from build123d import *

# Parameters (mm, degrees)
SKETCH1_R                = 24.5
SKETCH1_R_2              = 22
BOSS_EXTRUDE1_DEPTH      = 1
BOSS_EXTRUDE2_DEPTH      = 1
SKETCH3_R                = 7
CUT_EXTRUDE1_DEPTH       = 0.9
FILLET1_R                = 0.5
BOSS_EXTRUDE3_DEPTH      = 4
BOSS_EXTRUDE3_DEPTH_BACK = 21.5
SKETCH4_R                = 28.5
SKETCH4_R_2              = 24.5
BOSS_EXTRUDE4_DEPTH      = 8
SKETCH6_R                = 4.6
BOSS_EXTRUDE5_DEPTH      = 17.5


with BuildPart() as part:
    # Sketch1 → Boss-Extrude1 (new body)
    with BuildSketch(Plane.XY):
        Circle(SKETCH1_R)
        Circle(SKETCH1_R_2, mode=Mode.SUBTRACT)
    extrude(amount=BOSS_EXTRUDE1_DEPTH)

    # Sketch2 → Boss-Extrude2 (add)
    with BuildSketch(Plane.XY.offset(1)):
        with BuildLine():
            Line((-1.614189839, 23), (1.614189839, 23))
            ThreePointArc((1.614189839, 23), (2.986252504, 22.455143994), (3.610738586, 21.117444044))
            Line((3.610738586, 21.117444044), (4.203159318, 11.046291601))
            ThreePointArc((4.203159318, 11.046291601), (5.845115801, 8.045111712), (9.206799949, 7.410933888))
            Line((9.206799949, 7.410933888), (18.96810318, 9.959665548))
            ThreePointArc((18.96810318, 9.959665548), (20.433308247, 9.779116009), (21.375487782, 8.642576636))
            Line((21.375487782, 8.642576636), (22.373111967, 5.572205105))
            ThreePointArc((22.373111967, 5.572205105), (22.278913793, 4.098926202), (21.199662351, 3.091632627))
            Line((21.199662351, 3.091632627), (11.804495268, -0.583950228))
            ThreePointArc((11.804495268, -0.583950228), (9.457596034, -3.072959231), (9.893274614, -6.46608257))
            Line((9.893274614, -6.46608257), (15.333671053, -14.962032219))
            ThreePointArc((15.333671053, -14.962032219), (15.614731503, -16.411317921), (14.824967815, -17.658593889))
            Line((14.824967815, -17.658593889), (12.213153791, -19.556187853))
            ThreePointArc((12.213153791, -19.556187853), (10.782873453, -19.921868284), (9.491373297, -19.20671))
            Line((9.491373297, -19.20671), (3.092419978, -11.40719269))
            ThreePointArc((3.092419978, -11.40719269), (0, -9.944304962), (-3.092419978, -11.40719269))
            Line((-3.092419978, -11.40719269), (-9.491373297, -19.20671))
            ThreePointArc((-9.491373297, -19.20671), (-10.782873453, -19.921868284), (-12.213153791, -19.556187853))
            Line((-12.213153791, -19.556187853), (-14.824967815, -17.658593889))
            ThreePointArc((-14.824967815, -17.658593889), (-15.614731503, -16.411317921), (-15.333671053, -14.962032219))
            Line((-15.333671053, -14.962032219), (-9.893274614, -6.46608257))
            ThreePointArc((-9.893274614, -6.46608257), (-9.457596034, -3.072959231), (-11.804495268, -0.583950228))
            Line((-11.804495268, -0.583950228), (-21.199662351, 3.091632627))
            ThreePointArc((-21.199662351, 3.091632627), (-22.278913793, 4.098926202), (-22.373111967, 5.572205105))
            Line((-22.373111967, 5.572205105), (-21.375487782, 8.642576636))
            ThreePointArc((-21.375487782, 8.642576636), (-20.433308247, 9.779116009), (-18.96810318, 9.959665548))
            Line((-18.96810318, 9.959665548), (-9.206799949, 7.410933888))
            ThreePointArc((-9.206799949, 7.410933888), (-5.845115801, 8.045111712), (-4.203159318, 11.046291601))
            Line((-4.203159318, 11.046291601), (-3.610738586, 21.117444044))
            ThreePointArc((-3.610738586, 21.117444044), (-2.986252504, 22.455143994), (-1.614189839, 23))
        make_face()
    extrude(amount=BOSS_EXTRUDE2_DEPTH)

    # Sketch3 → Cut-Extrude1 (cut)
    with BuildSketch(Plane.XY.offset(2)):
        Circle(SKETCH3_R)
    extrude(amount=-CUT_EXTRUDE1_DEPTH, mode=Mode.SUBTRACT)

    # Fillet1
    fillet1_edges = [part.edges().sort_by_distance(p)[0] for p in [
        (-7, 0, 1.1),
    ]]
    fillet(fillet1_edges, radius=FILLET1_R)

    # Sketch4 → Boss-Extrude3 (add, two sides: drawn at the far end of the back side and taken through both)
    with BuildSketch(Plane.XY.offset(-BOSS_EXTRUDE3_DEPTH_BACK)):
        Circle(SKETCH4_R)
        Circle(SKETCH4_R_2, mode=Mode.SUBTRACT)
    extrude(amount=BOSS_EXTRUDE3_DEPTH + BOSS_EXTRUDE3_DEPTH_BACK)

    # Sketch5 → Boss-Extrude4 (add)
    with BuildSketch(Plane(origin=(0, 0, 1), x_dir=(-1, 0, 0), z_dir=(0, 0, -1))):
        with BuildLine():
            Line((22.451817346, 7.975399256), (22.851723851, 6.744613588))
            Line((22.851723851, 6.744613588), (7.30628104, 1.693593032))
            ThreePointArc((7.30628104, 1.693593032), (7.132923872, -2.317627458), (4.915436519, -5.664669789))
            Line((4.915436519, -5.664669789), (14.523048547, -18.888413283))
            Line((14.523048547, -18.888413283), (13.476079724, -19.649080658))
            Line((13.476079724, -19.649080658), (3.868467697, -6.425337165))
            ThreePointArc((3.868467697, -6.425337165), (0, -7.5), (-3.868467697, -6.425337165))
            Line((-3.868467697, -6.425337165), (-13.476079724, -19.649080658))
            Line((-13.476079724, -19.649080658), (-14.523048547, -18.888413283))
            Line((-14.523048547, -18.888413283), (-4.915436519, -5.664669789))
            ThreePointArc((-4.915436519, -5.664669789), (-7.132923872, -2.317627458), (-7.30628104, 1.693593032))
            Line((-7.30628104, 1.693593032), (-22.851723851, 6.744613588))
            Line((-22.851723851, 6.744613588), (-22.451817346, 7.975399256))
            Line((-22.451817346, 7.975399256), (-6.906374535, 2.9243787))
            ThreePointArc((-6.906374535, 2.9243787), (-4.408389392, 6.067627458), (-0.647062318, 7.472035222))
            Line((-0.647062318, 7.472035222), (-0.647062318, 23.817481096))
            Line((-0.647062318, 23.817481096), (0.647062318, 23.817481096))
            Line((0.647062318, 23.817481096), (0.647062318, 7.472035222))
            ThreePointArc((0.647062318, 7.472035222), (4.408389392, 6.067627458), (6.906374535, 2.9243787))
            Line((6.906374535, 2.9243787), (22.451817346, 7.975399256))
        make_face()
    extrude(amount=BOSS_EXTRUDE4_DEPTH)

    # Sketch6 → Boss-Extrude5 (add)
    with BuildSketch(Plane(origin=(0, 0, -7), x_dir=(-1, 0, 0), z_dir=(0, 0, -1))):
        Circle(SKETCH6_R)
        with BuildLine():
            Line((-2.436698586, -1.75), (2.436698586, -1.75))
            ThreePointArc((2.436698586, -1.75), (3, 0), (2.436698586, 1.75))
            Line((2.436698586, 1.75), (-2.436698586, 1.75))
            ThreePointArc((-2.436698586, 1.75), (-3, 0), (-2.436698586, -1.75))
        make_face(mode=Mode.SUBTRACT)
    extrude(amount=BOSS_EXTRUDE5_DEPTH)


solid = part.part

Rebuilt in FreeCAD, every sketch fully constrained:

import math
import FreeCAD as App
import Part
import Sketcher

V = App.Vector
Q = App.Units.Quantity


def edges_at(feature, points):
    """Names of the edges that pass closest to the given points."""
    edges = feature.Shape.Edges
    near = lambda p: min(range(len(edges)), key=lambda i: edges[i].distToShape(Part.Vertex(*p))[0])
    return sorted({f"Edge{near(p) + 1}" for p in points})

doc = App.newDocument("Part")
body = doc.addObject("PartDesign::Body", "Body")

# Sketch on XY plane
sketch1 = body.newObject("Sketcher::SketchObject", "Sketch")
sketch1.AttachmentSupport = (doc.getObject("XY_Plane"), [""])
sketch1.MapMode = "FlatFace"
sketch1.addGeometry(Part.Circle(V(0, 0, 0), V(0, 0, 1), 24.5), False)
sketch1.addGeometry(Part.Circle(V(0, 0, 0), V(0, 0, 1), 22), False)
sketch1.addConstraint(Sketcher.Constraint("Coincident", 0, 3, -1, 1))
sketch1.addConstraint(Sketcher.Constraint("Coincident", 1, 3, -1, 1))
sketch1.addConstraint(Sketcher.Constraint("Diameter", 0, Q("49 mm")))
sketch1.addConstraint(Sketcher.Constraint("Diameter", 1, Q("44 mm")))
pad1 = body.newObject("PartDesign::Pad", "Pad")
pad1.Profile = sketch1
pad1.Length = 1

# Sketch on XY plane
sketch2 = body.newObject("Sketcher::SketchObject", "Sketch001")
sketch2.AttachmentSupport = (doc.getObject("XY_Plane"), [""])
sketch2.MapMode = "FlatFace"
sketch2.AttachmentOffset = App.Placement(V(0, 0, 1), App.Rotation())
sketch2.addGeometry(Part.LineSegment(V(1.61419, 23, 0), V(-1.61419, 23, 0)), False)
sketch2.addGeometry(Part.ArcOfCircle(Part.Circle(V(-1.61419, 21, 0), V(0, 0, 1), 2), math.radians(90), math.radians(176.633539)), False)
sketch2.addGeometry(Part.LineSegment(V(-3.610739, 21.117444, 0), V(-4.203159, 11.046292, 0)), False)
sketch2.addGeometry(Part.ArcOfCircle(Part.Circle(V(-8.196257, 11.28118, 0), V(0, 0, 1), 4), math.radians(-104.633539), math.radians(-3.366461)), False)
sketch2.addGeometry(Part.LineSegment(V(-9.2068, 7.410934, 0), V(-18.968103, 9.959666, 0)), False)
sketch2.addGeometry(Part.ArcOfCircle(Part.Circle(V(-19.473375, 8.024543, 0), V(0, 0, 1), 2), math.radians(75.366461), math.radians(162)), False)
sketch2.addGeometry(Part.LineSegment(V(-21.375488, 8.642577, 0), V(-22.373112, 5.572205, 0)), False)
sketch2.addGeometry(Part.ArcOfCircle(Part.Circle(V(-20.470999, 4.954171, 0), V(0, 0, 1), 2), math.radians(162), math.radians(248.633539)), False)
sketch2.addGeometry(Part.LineSegment(V(-21.199662, 3.091633, 0), V(-11.804495, -0.58395, 0)), False)
sketch2.addGeometry(Part.ArcOfCircle(Part.Circle(V(-13.261822, -4.309027, 0), V(0, 0, 1), 4), math.radians(-32.633539), math.radians(68.633539)), False)
sketch2.addGeometry(Part.LineSegment(V(-9.893275, -6.466083, 0), V(-15.333671, -14.962032, 0)), False)
sketch2.addGeometry(Part.ArcOfCircle(Part.Circle(V(-13.649397, -16.04056, 0), V(0, 0, 1), 2), math.radians(147.366461), math.radians(234)), False)
sketch2.addGeometry(Part.LineSegment(V(-14.824968, -17.658594, 0), V(-12.213154, -19.556188, 0)), False)
sketch2.addGeometry(Part.ArcOfCircle(Part.Circle(V(-11.037583, -17.938154, 0), V(0, 0, 1), 2), math.radians(-126), math.radians(-39.366461)), False)
sketch2.addGeometry(Part.LineSegment(V(-9.491373, -19.20671, 0), V(-3.09242, -11.407193, 0)), False)
sketch2.addGeometry(Part.ArcOfCircle(Part.Circle(V(0, -13.944305, 0), V(0, 0, 1), 4), math.radians(39.366461), math.radians(140.633539)), False)
sketch2.addGeometry(Part.LineSegment(V(3.09242, -11.407193, 0), V(9.491373, -19.20671, 0)), False)
sketch2.addGeometry(Part.ArcOfCircle(Part.Circle(V(11.037583, -17.938154, 0), V(0, 0, 1), 2), math.radians(-140.633539), math.radians(-54)), False)
sketch2.addGeometry(Part.LineSegment(V(12.213154, -19.556188, 0), V(14.824968, -17.658594, 0)), False)
sketch2.addGeometry(Part.ArcOfCircle(Part.Circle(V(13.649397, -16.04056, 0), V(0, 0, 1), 2), math.radians(-54), math.radians(32.633539)), False)
sketch2.addGeometry(Part.LineSegment(V(15.333671, -14.962032, 0), V(9.893275, -6.466083, 0)), False)
sketch2.addGeometry(Part.ArcOfCircle(Part.Circle(V(13.261822, -4.309027, 0), V(0, 0, 1), 4), math.radians(111.366461), math.radians(212.633539)), False)
sketch2.addGeometry(Part.LineSegment(V(11.804495, -0.58395, 0), V(21.199662, 3.091633, 0)), False)
sketch2.addGeometry(Part.ArcOfCircle(Part.Circle(V(20.470999, 4.954171, 0), V(0, 0, 1), 2), math.radians(-68.633539), math.radians(18)), False)
sketch2.addGeometry(Part.LineSegment(V(22.373112, 5.572205, 0), V(21.375488, 8.642577, 0)), False)
sketch2.addGeometry(Part.ArcOfCircle(Part.Circle(V(19.473375, 8.024543, 0), V(0, 0, 1), 2), math.radians(18), math.radians(104.633539)), False)
sketch2.addGeometry(Part.LineSegment(V(18.968103, 9.959666, 0), V(9.2068, 7.410934, 0)), False)
sketch2.addGeometry(Part.ArcOfCircle(Part.Circle(V(8.196257, 11.28118, 0), V(0, 0, 1), 4), math.radians(-176.633539), math.radians(-75.366461)), False)
sketch2.addGeometry(Part.LineSegment(V(4.203159, 11.046292, 0), V(3.610739, 21.117444, 0)), False)
sketch2.addGeometry(Part.ArcOfCircle(Part.Circle(V(1.61419, 21, 0), V(0, 0, 1), 2), math.radians(3.366461), math.radians(90)), False)
sketch2.addConstraint(Sketcher.Constraint("Tangent", 0, 2, 1, 1))
sketch2.addConstraint(Sketcher.Constraint("Tangent", 1, 2, 2, 1))
sketch2.addConstraint(Sketcher.Constraint("Tangent", 2, 2, 3, 2))
sketch2.addConstraint(Sketcher.Constraint("Tangent", 3, 1, 4, 1))
sketch2.addConstraint(Sketcher.Constraint("Tangent", 4, 2, 5, 1))
sketch2.addConstraint(Sketcher.Constraint("Tangent", 5, 2, 6, 1))
sketch2.addConstraint(Sketcher.Constraint("Tangent", 6, 2, 7, 1))
sketch2.addConstraint(Sketcher.Constraint("Tangent", 7, 2, 8, 1))
sketch2.addConstraint(Sketcher.Constraint("Tangent", 8, 2, 9, 2))
sketch2.addConstraint(Sketcher.Constraint("Tangent", 9, 1, 10, 1))
sketch2.addConstraint(Sketcher.Constraint("Tangent", 10, 2, 11, 1))
sketch2.addConstraint(Sketcher.Constraint("Tangent", 11, 2, 12, 1))
sketch2.addConstraint(Sketcher.Constraint("Tangent", 12, 2, 13, 1))
sketch2.addConstraint(Sketcher.Constraint("Tangent", 13, 2, 14, 1))
sketch2.addConstraint(Sketcher.Constraint("Tangent", 14, 2, 15, 2))
sketch2.addConstraint(Sketcher.Constraint("Tangent", 15, 1, 16, 1))
sketch2.addConstraint(Sketcher.Constraint("Tangent", 16, 2, 17, 1))
sketch2.addConstraint(Sketcher.Constraint("Tangent", 17, 2, 18, 1))
sketch2.addConstraint(Sketcher.Constraint("Tangent", 18, 2, 19, 1))
sketch2.addConstraint(Sketcher.Constraint("Tangent", 19, 2, 20, 1))
sketch2.addConstraint(Sketcher.Constraint("Tangent", 20, 2, 21, 2))
sketch2.addConstraint(Sketcher.Constraint("Tangent", 21, 1, 22, 1))
sketch2.addConstraint(Sketcher.Constraint("Tangent", 22, 2, 23, 1))
sketch2.addConstraint(Sketcher.Constraint("Tangent", 23, 2, 24, 1))
sketch2.addConstraint(Sketcher.Constraint("Tangent", 24, 2, 25, 1))
sketch2.addConstraint(Sketcher.Constraint("Tangent", 25, 2, 26, 1))
sketch2.addConstraint(Sketcher.Constraint("Tangent", 26, 2, 27, 2))
sketch2.addConstraint(Sketcher.Constraint("Tangent", 27, 1, 28, 1))
sketch2.addConstraint(Sketcher.Constraint("Tangent", 28, 2, 29, 1))
sketch2.addConstraint(Sketcher.Constraint("Tangent", 29, 2, 0, 1))
sketch2.addConstraint(Sketcher.Constraint("Horizontal", 0))
sketch2.addConstraint(Sketcher.Constraint("Equal", 1, 5))
sketch2.addConstraint(Sketcher.Constraint("Equal", 5, 7))
sketch2.addConstraint(Sketcher.Constraint("Equal", 3, 9))
sketch2.addConstraint(Sketcher.Constraint("Equal", 7, 11))
sketch2.addConstraint(Sketcher.Constraint("Equal", 11, 13))
sketch2.addConstraint(Sketcher.Constraint("Equal", 9, 15))
sketch2.addConstraint(Sketcher.Constraint("Equal", 13, 17))
sketch2.addConstraint(Sketcher.Constraint("Equal", 17, 19))
sketch2.addConstraint(Sketcher.Constraint("Equal", 15, 21))
sketch2.addConstraint(Sketcher.Constraint("Equal", 19, 23))
sketch2.addConstraint(Sketcher.Constraint("Equal", 23, 25))
sketch2.addConstraint(Sketcher.Constraint("Equal", 21, 27))
sketch2.addConstraint(Sketcher.Constraint("Equal", 25, 29))
sketch2.addConstraint(Sketcher.Constraint("Symmetric", 13, 3, 17, 3, -2))
sketch2.addConstraint(Sketcher.Constraint("Symmetric", 11, 3, 19, 3, -2))
sketch2.addConstraint(Sketcher.Constraint("Symmetric", 9, 3, 21, 3, -2))
sketch2.addConstraint(Sketcher.Constraint("Symmetric", 7, 3, 23, 3, -2))
sketch2.addConstraint(Sketcher.Constraint("Symmetric", 5, 3, 25, 3, -2))
sketch2.addConstraint(Sketcher.Constraint("Symmetric", 3, 3, 27, 3, -2))
sketch2.addConstraint(Sketcher.Constraint("PointOnObject", 15, 3, -2))
sketch2.addConstraint(Sketcher.Constraint("Horizontal", 2, 2, 27, 1))
sketch2.addConstraint(Sketcher.Constraint("Equal", 2, 4))
sketch2.addConstraint(Sketcher.Constraint("Equal", 4, 8))
sketch2.addConstraint(Sketcher.Constraint("Equal", 8, 10))
sketch2.addConstraint(Sketcher.Constraint("Equal", 6, 12))
sketch2.addConstraint(Sketcher.Constraint("Equal", 10, 14))
sketch2.addConstraint(Sketcher.Constraint("Radius", 1, Q("2 mm")))
sketch2.addConstraint(Sketcher.Constraint("Radius", 3, Q("4 mm")))
sketch2.addConstraint(Sketcher.Constraint("Angle", 6, Q("-108 deg")))
sketch2.addConstraint(Sketcher.Constraint("Angle", 12, Q("-36 deg")))
sketch2.addConstraint(Sketcher.Constraint("DistanceY", -1, 1, 1, 3, Q("21 mm")))
sketch2.addConstraint(Sketcher.Constraint("DistanceX", 7, 3, -1, 1, Q("20.470999 mm")))
sketch2.addConstraint(Sketcher.Constraint("DistanceX", 0, 2, 0, 1, Q("3.22838 mm")))
sketch2.addConstraint(Sketcher.Constraint("DistanceX", 3, 1, -1, 1, Q("9.2068 mm")))
sketch2.addConstraint(Sketcher.Constraint("DistanceY", 9, 3, 7, 3, Q("9.263198 mm")))
sketch2.addConstraint(Sketcher.Constraint("DistanceX", 7, 3, 11, 3, Q("6.821602 mm")))
sketch2.addConstraint(Sketcher.Constraint("DistanceY", 18, 2, 15, 1, Q("6.251401 mm")))
sketch2.addConstraint(Sketcher.Constraint("Distance", 2, Q("10.088562 mm")))
pad2 = body.newObject("PartDesign::Pad", "Pad001")
pad2.Profile = sketch2
pad2.Length = 1

# Sketch on XY plane
sketch3 = body.newObject("Sketcher::SketchObject", "Sketch002")
sketch3.AttachmentSupport = (doc.getObject("XY_Plane"), [""])
sketch3.MapMode = "FlatFace"
sketch3.AttachmentOffset = App.Placement(V(0, 0, 2), App.Rotation())
sketch3.addGeometry(Part.Circle(V(0, 0, 0), V(0, 0, 1), 7), False)
sketch3.addConstraint(Sketcher.Constraint("Coincident", 0, 3, -1, 1))
sketch3.addConstraint(Sketcher.Constraint("Diameter", 0, Q("14 mm")))
pocket1 = body.newObject("PartDesign::Pocket", "Pocket")
pocket1.Profile = sketch3
pocket1.Length = 0.9
doc.recompute()

fillet = body.newObject("PartDesign::Fillet", "Fillet")
fillet.Base = (pocket1, edges_at(pocket1, [(-7, 0, 1.1)]))
fillet.Radius = 0.5

# Sketch on XY plane
sketch4 = body.newObject("Sketcher::SketchObject", "Sketch003")
sketch4.AttachmentSupport = (doc.getObject("XY_Plane"), [""])
sketch4.MapMode = "FlatFace"
sketch4.addGeometry(Part.Circle(V(0, 0, 0), V(0, 0, 1), 28.5), False)
sketch4.addGeometry(Part.Circle(V(0, 0, 0), V(0, 0, 1), 24.5), False)
sketch4.addConstraint(Sketcher.Constraint("Coincident", 0, 3, -1, 1))
sketch4.addConstraint(Sketcher.Constraint("Coincident", 1, 3, -1, 1))
sketch4.addConstraint(Sketcher.Constraint("Diameter", 0, Q("57 mm")))
sketch4.addConstraint(Sketcher.Constraint("Diameter", 1, Q("49 mm")))
pad3 = body.newObject("PartDesign::Pad", "Pad002")
pad3.Profile = sketch4
pad3.Type = "TwoLengths"
pad3.Length = 4
pad3.Length2 = 21.5

# Sketch on XY plane
sketch5 = body.newObject("Sketcher::SketchObject", "Sketch004")
sketch5.AttachmentSupport = (doc.getObject("XY_Plane"), [""])
sketch5.MapMode = "FlatFace"
sketch5.AttachmentOffset = App.Placement(V(0, 0, 1), App.Rotation())
sketch5.addGeometry(Part.LineSegment(V(-22.851724, 6.744614, 0), V(-22.451817, 7.975399, 0)), False)
sketch5.addGeometry(Part.LineSegment(V(-22.451817, 7.975399, 0), V(-6.906375, 2.924379, 0)), False)
sketch5.addGeometry(Part.ArcOfCircle(Part.Circle(V(0, 0, 0), V(0, 0, 1), 7.5), math.radians(94.949345), math.radians(157.050655)), False)
sketch5.addGeometry(Part.LineSegment(V(-0.647062, 7.472035, 0), V(-0.647062, 23.817481, 0)), False)
sketch5.addGeometry(Part.LineSegment(V(-0.647062, 23.817481, 0), V(0.647062, 23.817481, 0)), False)
sketch5.addGeometry(Part.LineSegment(V(0.647062, 23.817481, 0), V(0.647062, 7.472035, 0)), False)
sketch5.addGeometry(Part.ArcOfCircle(Part.Circle(V(0, 0, 0), V(0, 0, 1), 7.5), math.radians(22.949345), math.radians(85.050655)), False)
sketch5.addGeometry(Part.LineSegment(V(6.906375, 2.924379, 0), V(22.451817, 7.975399, 0)), False)
sketch5.addGeometry(Part.LineSegment(V(22.451817, 7.975399, 0), V(22.851724, 6.744614, 0)), False)
sketch5.addGeometry(Part.LineSegment(V(22.851724, 6.744614, 0), V(7.306281, 1.693593, 0)), False)
sketch5.addGeometry(Part.ArcOfCircle(Part.Circle(V(0, 0, 0), V(0, 0, 1), 7.5), math.radians(-49.050655), math.radians(13.050655)), False)
sketch5.addGeometry(Part.LineSegment(V(4.915437, -5.66467, 0), V(14.523049, -18.888413, 0)), False)
sketch5.addGeometry(Part.LineSegment(V(14.523049, -18.888413, 0), V(13.47608, -19.649081, 0)), False)
sketch5.addGeometry(Part.LineSegment(V(13.47608, -19.649081, 0), V(3.868468, -6.425337, 0)), False)
sketch5.addGeometry(Part.ArcOfCircle(Part.Circle(V(0, 0, 0), V(0, 0, 1), 7.5), math.radians(-121.050655), math.radians(-58.949345)), False)
sketch5.addGeometry(Part.LineSegment(V(-3.868468, -6.425337, 0), V(-13.47608, -19.649081, 0)), False)
sketch5.addGeometry(Part.LineSegment(V(-13.47608, -19.649081, 0), V(-14.523049, -18.888413, 0)), False)
sketch5.addGeometry(Part.LineSegment(V(-14.523049, -18.888413, 0), V(-4.915437, -5.66467, 0)), False)
sketch5.addGeometry(Part.ArcOfCircle(Part.Circle(V(0, 0, 0), V(0, 0, 1), 7.5), math.radians(166.949345), math.radians(229.050655)), False)
sketch5.addGeometry(Part.LineSegment(V(-7.306281, 1.693593, 0), V(-22.851724, 6.744614, 0)), False)
sketch5.addConstraint(Sketcher.Constraint("Coincident", 0, 2, 1, 1))
sketch5.addConstraint(Sketcher.Constraint("Coincident", 1, 2, 2, 2))
sketch5.addConstraint(Sketcher.Constraint("Coincident", 2, 1, 3, 1))
sketch5.addConstraint(Sketcher.Constraint("Coincident", 3, 2, 4, 1))
sketch5.addConstraint(Sketcher.Constraint("Coincident", 4, 2, 5, 1))
sketch5.addConstraint(Sketcher.Constraint("Coincident", 5, 2, 6, 2))
sketch5.addConstraint(Sketcher.Constraint("Coincident", 6, 1, 7, 1))
sketch5.addConstraint(Sketcher.Constraint("Coincident", 7, 2, 8, 1))
sketch5.addConstraint(Sketcher.Constraint("Coincident", 8, 2, 9, 1))
sketch5.addConstraint(Sketcher.Constraint("Coincident", 9, 2, 10, 2))
sketch5.addConstraint(Sketcher.Constraint("Coincident", 10, 1, 11, 1))
sketch5.addConstraint(Sketcher.Constraint("Coincident", 11, 2, 12, 1))
sketch5.addConstraint(Sketcher.Constraint("Coincident", 12, 2, 13, 1))
sketch5.addConstraint(Sketcher.Constraint("Coincident", 13, 2, 14, 2))
sketch5.addConstraint(Sketcher.Constraint("Coincident", 14, 1, 15, 1))
sketch5.addConstraint(Sketcher.Constraint("Coincident", 15, 2, 16, 1))
sketch5.addConstraint(Sketcher.Constraint("Coincident", 16, 2, 17, 1))
sketch5.addConstraint(Sketcher.Constraint("Coincident", 17, 2, 18, 2))
sketch5.addConstraint(Sketcher.Constraint("Coincident", 18, 1, 19, 1))
sketch5.addConstraint(Sketcher.Constraint("Coincident", 19, 2, 0, 1))
sketch5.addConstraint(Sketcher.Constraint("Vertical", 3))
sketch5.addConstraint(Sketcher.Constraint("Horizontal", 4))
sketch5.addConstraint(Sketcher.Constraint("Vertical", 5))
sketch5.addConstraint(Sketcher.Constraint("Coincident", 2, 3, -1, 1))
sketch5.addConstraint(Sketcher.Constraint("Coincident", 6, 3, -1, 1))
sketch5.addConstraint(Sketcher.Constraint("Coincident", 10, 3, -1, 1))
sketch5.addConstraint(Sketcher.Constraint("Coincident", 14, 3, -1, 1))
sketch5.addConstraint(Sketcher.Constraint("Coincident", 18, 3, -1, 1))
sketch5.addConstraint(Sketcher.Constraint("Equal", 2, 6))
sketch5.addConstraint(Sketcher.Constraint("Equal", 6, 10))
sketch5.addConstraint(Sketcher.Constraint("Equal", 10, 14))
sketch5.addConstraint(Sketcher.Constraint("Equal", 14, 18))
sketch5.addConstraint(Sketcher.Constraint("Symmetric", 0, 2, 7, 2, -2))
sketch5.addConstraint(Sketcher.Constraint("Symmetric", 12, 2, 15, 2, -2))
sketch5.addConstraint(Sketcher.Constraint("Symmetric", 11, 2, 16, 2, -2))
sketch5.addConstraint(Sketcher.Constraint("Symmetric", 8, 2, 19, 2, -2))
sketch5.addConstraint(Sketcher.Constraint("Perpendicular", 0, 1))
sketch5.addConstraint(Sketcher.Constraint("Perpendicular", 7, 8))
sketch5.addConstraint(Sketcher.Constraint("Perpendicular", 8, 9))
sketch5.addConstraint(Sketcher.Constraint("Perpendicular", 11, 12))
sketch5.addConstraint(Sketcher.Constraint("Perpendicular", 12, 13))
sketch5.addConstraint(Sketcher.Constraint("Perpendicular", 15, 16))
sketch5.addConstraint(Sketcher.Constraint("Perpendicular", 16, 17))
sketch5.addConstraint(Sketcher.Constraint("Parallel", 1, 19))
sketch5.addConstraint(Sketcher.Constraint("Horizontal", 2, 1, 5, 2))
sketch5.addConstraint(Sketcher.Constraint("Equal", 7, 9))
sketch5.addConstraint(Sketcher.Constraint("Equal", 9, 11))
sketch5.addConstraint(Sketcher.Constraint("Equal", 8, 12))
sketch5.addConstraint(Sketcher.Constraint("Equal", 11, 13))
sketch5.addConstraint(Sketcher.Constraint("Radius", 2, Q("7.5 mm")))
sketch5.addConstraint(Sketcher.Constraint("Angle", 0, Q("72 deg")))
sketch5.addConstraint(Sketcher.Constraint("Angle", 11, Q("-54 deg")))
sketch5.addConstraint(Sketcher.Constraint("DistanceY", -1, 1, 0, 2, Q("7.975399 mm")))
sketch5.addConstraint(Sketcher.Constraint("DistanceX", 9, 2, 12, 2, Q("6.169799 mm")))
sketch5.addConstraint(Sketcher.Constraint("DistanceX", 4, 1, 4, 2, Q("1.294125 mm")))
sketch5.addConstraint(Sketcher.Constraint("DistanceY", 3, 1, 3, 2, Q("16.345446 mm")))
pad4 = body.newObject("PartDesign::Pad", "Pad003")
pad4.Profile = sketch5
pad4.Length = 8
pad4.Reversed = True

# Sketch on XY plane
sketch6 = body.newObject("Sketcher::SketchObject", "Sketch005")
sketch6.AttachmentSupport = (doc.getObject("XY_Plane"), [""])
sketch6.MapMode = "FlatFace"
sketch6.AttachmentOffset = App.Placement(V(0, 0, -7), App.Rotation())
sketch6.addGeometry(Part.Circle(V(0, 0, 0), V(0, 0, 1), 4.6), False)
sketch6.addGeometry(Part.LineSegment(V(-2.436699, -1.75, 0), V(2.436699, -1.75, 0)), False)
sketch6.addGeometry(Part.ArcOfCircle(Part.Circle(V(0, 0, 0), V(0, 0, 1), 3), math.radians(-35.685335), math.radians(35.685335)), False)
sketch6.addGeometry(Part.LineSegment(V(2.436699, 1.75, 0), V(-2.436699, 1.75, 0)), False)
sketch6.addGeometry(Part.ArcOfCircle(Part.Circle(V(0, 0, 0), V(0, 0, 1), 3), math.radians(144.314665), math.radians(215.685335)), False)
sketch6.addConstraint(Sketcher.Constraint("Coincident", 1, 2, 2, 1))
sketch6.addConstraint(Sketcher.Constraint("Coincident", 2, 2, 3, 1))
sketch6.addConstraint(Sketcher.Constraint("Coincident", 3, 2, 4, 1))
sketch6.addConstraint(Sketcher.Constraint("Coincident", 4, 2, 1, 1))
sketch6.addConstraint(Sketcher.Constraint("Horizontal", 1))
sketch6.addConstraint(Sketcher.Constraint("Horizontal", 3))
sketch6.addConstraint(Sketcher.Constraint("Coincident", 0, 3, -1, 1))
sketch6.addConstraint(Sketcher.Constraint("Coincident", 2, 3, -1, 1))
sketch6.addConstraint(Sketcher.Constraint("Coincident", 4, 3, -1, 1))
sketch6.addConstraint(Sketcher.Constraint("Equal", 2, 4))
sketch6.addConstraint(Sketcher.Constraint("Vertical", 1, 2, 2, 2))
sketch6.addConstraint(Sketcher.Constraint("Radius", 2, Q("3 mm")))
sketch6.addConstraint(Sketcher.Constraint("Diameter", 0, Q("9.2 mm")))
sketch6.addConstraint(Sketcher.Constraint("DistanceY", 1, 2, 2, 2, Q("3.5 mm")))
pad5 = body.newObject("PartDesign::Pad", "Pad004")
pad5.Profile = sketch6
pad5.Length = 17.5
pad5.Reversed = True

doc.recompute()
